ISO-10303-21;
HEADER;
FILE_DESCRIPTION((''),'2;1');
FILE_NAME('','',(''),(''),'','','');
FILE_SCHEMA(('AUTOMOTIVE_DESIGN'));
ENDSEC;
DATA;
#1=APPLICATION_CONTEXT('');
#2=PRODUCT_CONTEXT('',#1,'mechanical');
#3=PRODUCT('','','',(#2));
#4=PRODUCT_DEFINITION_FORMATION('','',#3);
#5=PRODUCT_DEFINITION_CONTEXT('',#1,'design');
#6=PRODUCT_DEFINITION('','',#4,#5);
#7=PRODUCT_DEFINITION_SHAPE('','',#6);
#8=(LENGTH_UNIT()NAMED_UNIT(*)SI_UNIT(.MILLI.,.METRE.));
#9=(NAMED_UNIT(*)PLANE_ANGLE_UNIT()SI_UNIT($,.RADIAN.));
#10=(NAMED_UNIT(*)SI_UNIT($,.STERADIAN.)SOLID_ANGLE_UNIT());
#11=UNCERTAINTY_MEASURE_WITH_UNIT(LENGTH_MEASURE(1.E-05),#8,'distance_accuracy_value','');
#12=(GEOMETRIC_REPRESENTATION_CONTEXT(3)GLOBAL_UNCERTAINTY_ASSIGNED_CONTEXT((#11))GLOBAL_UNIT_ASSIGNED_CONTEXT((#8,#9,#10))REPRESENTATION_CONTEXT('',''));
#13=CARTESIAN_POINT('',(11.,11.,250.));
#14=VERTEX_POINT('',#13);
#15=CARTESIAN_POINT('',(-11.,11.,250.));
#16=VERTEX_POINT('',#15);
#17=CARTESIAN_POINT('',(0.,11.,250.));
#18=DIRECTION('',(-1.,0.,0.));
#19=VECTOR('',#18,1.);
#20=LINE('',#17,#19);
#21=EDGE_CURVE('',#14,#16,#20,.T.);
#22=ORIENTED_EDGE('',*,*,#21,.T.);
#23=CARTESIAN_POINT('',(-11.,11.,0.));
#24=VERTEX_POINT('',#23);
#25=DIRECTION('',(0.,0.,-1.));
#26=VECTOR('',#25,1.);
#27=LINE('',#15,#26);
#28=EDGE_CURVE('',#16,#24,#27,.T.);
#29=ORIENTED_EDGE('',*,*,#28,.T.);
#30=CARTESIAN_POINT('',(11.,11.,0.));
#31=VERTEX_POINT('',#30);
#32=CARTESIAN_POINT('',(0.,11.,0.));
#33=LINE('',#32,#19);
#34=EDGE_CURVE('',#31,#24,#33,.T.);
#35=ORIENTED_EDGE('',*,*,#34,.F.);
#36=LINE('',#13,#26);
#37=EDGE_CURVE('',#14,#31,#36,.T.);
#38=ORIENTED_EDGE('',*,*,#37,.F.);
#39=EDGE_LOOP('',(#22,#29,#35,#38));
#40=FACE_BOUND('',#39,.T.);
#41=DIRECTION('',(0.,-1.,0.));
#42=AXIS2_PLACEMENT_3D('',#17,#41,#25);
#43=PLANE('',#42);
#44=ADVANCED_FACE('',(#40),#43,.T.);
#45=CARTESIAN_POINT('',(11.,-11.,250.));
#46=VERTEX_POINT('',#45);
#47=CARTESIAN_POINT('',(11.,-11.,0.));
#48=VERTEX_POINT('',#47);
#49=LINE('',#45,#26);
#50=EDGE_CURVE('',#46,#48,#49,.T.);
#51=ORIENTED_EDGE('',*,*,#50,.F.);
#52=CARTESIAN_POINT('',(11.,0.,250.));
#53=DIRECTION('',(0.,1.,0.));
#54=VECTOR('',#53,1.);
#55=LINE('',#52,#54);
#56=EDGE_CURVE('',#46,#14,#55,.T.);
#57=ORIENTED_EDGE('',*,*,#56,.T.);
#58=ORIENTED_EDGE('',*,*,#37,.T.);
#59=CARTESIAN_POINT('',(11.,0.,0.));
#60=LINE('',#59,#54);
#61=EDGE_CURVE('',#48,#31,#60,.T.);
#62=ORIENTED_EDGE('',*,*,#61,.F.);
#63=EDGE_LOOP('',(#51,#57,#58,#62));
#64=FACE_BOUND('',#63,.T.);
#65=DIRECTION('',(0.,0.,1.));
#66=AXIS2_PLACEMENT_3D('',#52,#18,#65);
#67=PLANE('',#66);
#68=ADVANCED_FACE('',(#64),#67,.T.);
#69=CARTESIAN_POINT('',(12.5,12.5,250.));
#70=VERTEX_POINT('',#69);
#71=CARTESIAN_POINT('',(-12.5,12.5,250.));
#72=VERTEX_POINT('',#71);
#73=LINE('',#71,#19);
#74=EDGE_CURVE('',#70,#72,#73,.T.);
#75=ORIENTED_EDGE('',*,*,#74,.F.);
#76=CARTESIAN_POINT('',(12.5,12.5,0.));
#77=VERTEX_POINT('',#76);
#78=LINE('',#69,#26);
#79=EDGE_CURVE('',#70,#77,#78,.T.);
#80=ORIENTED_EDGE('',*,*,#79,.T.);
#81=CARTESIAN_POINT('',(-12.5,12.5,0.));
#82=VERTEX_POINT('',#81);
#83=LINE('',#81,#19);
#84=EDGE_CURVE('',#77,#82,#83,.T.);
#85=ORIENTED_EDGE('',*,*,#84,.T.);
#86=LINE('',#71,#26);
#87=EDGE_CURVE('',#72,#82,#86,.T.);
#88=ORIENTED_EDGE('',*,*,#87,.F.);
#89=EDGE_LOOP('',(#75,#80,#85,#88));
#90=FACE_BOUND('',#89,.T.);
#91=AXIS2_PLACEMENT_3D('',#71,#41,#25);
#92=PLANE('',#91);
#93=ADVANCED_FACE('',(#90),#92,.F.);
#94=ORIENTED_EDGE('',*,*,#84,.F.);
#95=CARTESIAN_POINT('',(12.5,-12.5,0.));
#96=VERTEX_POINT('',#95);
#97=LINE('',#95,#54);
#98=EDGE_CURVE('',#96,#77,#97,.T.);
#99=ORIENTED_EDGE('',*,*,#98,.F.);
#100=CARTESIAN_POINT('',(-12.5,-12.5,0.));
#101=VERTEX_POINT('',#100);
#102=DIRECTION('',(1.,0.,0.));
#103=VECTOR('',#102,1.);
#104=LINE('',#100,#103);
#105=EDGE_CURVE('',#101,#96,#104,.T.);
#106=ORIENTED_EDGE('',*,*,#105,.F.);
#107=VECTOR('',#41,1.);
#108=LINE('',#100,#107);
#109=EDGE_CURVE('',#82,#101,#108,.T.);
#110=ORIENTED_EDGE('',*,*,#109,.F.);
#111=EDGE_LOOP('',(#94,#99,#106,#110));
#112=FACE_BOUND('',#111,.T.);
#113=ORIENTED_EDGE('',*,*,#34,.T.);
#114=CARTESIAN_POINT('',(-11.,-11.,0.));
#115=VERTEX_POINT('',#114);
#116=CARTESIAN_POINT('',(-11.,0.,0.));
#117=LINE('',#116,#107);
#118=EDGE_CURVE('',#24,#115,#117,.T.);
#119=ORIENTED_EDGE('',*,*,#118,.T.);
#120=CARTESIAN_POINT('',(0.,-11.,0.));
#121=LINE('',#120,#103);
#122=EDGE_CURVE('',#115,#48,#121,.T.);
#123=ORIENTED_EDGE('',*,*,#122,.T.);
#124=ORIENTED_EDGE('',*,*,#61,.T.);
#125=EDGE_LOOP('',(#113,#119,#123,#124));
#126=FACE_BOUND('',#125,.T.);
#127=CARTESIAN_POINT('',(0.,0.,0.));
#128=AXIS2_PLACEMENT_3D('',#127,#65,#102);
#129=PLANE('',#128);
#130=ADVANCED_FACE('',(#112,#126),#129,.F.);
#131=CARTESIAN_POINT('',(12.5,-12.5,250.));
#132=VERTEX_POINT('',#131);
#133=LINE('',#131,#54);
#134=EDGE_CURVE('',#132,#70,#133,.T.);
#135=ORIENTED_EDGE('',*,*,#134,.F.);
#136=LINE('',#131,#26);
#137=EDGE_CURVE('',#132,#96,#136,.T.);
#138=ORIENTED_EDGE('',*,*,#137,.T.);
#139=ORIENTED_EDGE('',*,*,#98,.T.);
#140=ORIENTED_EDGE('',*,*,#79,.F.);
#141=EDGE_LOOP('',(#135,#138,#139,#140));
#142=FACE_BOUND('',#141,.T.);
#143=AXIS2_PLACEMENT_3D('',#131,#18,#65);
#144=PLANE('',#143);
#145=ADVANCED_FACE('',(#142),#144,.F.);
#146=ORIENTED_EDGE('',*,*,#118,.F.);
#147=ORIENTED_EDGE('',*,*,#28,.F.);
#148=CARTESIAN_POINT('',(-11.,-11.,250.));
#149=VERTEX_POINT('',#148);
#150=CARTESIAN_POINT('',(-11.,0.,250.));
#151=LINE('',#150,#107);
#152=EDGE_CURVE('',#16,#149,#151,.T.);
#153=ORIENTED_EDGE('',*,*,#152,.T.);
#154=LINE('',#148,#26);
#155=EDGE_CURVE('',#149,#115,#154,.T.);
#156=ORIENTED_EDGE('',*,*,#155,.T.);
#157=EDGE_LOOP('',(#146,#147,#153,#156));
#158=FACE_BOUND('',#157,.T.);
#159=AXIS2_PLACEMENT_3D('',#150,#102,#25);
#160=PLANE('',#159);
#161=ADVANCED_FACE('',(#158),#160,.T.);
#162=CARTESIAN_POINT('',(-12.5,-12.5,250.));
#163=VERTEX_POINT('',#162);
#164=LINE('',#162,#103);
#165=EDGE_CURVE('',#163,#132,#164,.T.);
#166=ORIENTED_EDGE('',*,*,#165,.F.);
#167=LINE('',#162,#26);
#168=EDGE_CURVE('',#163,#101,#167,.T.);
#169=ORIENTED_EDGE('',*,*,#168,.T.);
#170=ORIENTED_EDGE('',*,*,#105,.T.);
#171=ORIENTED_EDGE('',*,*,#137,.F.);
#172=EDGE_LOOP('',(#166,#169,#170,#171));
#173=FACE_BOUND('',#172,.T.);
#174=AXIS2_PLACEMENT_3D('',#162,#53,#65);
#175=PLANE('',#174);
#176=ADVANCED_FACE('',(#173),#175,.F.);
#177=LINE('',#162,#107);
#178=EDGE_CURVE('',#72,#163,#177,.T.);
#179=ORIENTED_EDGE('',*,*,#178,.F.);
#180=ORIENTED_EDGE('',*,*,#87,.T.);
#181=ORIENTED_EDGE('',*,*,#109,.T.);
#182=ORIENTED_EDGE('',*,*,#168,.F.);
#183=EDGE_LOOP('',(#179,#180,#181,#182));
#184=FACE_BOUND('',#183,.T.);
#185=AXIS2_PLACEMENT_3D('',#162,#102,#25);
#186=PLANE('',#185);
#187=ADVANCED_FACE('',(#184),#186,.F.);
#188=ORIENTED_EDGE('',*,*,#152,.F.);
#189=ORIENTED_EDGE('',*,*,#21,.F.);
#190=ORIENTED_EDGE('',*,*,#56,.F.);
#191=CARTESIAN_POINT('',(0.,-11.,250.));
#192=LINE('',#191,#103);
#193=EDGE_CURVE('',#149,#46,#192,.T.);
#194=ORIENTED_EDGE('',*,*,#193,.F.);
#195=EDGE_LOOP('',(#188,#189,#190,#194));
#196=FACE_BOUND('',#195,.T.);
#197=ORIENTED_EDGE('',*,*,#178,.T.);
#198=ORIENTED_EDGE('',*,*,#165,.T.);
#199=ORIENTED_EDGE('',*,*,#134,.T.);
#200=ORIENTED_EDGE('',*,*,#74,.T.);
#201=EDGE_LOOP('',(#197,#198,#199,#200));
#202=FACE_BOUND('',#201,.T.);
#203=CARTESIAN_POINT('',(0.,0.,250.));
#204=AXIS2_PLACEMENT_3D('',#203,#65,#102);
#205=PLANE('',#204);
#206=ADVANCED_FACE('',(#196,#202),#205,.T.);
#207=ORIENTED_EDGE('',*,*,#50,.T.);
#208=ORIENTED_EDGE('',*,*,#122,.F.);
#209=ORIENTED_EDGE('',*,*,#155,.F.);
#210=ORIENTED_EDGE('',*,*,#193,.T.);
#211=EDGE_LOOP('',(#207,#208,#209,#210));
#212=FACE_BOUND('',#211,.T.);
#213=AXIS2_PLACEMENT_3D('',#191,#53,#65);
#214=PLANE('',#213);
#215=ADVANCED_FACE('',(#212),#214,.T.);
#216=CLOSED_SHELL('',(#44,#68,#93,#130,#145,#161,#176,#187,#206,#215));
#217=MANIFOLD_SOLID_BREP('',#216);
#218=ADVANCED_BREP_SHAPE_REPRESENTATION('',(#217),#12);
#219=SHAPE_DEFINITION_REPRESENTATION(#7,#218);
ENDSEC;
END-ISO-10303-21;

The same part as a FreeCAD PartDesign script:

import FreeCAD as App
import Part
import Sketcher
from FreeCAD import Vector
Q = App.Units.Quantity

doc = App.newDocument("Part")
params = doc.addObject("Spreadsheet::Sheet", "Params")
for row, (alias, value) in enumerate([
    ("sketch1_width", "25 mm"),
    ("sketch1_width2", "22 mm"),
    ("pad1_length", "250 mm"),
], start=1):
    params.set(f"A{row}", alias)
    params.set(f"B{row}", "=" + value)
    params.setAlias(f"B{row}", alias)

body = doc.addObject("PartDesign::Body", "Body")

# Sketch on XY plane
sketch1 = body.newObject("Sketcher::SketchObject", "Sketch")
sketch1.AttachmentSupport = (doc.getObject("XY_Plane"), [""])
sketch1.MapMode = "FlatFace"
sketch1.addGeometry(Part.LineSegment(Vector(-12, 12, 0), Vector(-12, -12, 0)), False)
sketch1.addGeometry(Part.LineSegment(Vector(-12, -12, 0), Vector(12, -12, 0)), False)
sketch1.addGeometry(Part.LineSegment(Vector(12, -12, 0), Vector(12, 12, 0)), False)
sketch1.addGeometry(Part.LineSegment(Vector(12, 12, 0), Vector(-12, 12, 0)), False)
sketch1.addGeometry(Part.LineSegment(Vector(11, -11, 0), Vector(-11, -11, 0)), False)
sketch1.addGeometry(Part.LineSegment(Vector(-11, -11, 0), Vector(-11, 11, 0)), False)
sketch1.addGeometry(Part.LineSegment(Vector(-11, 11, 0), Vector(11, 11, 0)), False)
sketch1.addGeometry(Part.LineSegment(Vector(11, 11, 0), Vector(11, -11, 0)), False)
sketch1.addConstraint(Sketcher.Constraint("Coincident", 0, 2, 1, 1))
sketch1.addConstraint(Sketcher.Constraint("Coincident", 1, 2, 2, 1))
sketch1.addConstraint(Sketcher.Constraint("Coincident", 2, 2, 3, 1))
sketch1.addConstraint(Sketcher.Constraint("Coincident", 3, 2, 0, 1))
sketch1.addConstraint(Sketcher.Constraint("Coincident", 4, 2, 5, 1))
sketch1.addConstraint(Sketcher.Constraint("Coincident", 5, 2, 6, 1))
sketch1.addConstraint(Sketcher.Constraint("Coincident", 6, 2, 7, 1))
sketch1.addConstraint(Sketcher.Constraint("Coincident", 7, 2, 4, 1))
sketch1.addConstraint(Sketcher.Constraint("Vertical", 0))
sketch1.addConstraint(Sketcher.Constraint("Horizontal", 1))
sketch1.addConstraint(Sketcher.Constraint("Vertical", 2))
sketch1.addConstraint(Sketcher.Constraint("Horizontal", 3))
sketch1.addConstraint(Sketcher.Constraint("Horizontal", 4))
sketch1.addConstraint(Sketcher.Constraint("Vertical", 5))
sketch1.addConstraint(Sketcher.Constraint("Horizontal", 6))
sketch1.addConstraint(Sketcher.Constraint("Vertical", 7))
sketch1.addConstraint(Sketcher.Constraint("Symmetric", 0, 2, 2, 2, -1, 1))
sketch1.addConstraint(Sketcher.Constraint("Symmetric", 4, 2, 6, 2, -1, 1))
sketch1.addConstraint(Sketcher.Constraint("Equal", 3, 0))
sketch1.addConstraint(Sketcher.Constraint("Equal", 6, 5))
sketch1.addConstraint(Sketcher.Constraint("DistanceX", 1, 1, 1, 2, Q("25 mm")))
sketch1.addConstraint(Sketcher.Constraint("DistanceX", 4, 2, 4, 1, Q("22 mm")))
sketch1.setExpression("Constraints[20]", "Params.sketch1_width")
sketch1.setExpression("Constraints[21]", "Params.sketch1_width2")
pad1 = body.newObject("PartDesign::Pad", "Pad")
pad1.Profile = sketch1
pad1.setExpression("Length", "Params.pad1_length")

doc.recompute()
